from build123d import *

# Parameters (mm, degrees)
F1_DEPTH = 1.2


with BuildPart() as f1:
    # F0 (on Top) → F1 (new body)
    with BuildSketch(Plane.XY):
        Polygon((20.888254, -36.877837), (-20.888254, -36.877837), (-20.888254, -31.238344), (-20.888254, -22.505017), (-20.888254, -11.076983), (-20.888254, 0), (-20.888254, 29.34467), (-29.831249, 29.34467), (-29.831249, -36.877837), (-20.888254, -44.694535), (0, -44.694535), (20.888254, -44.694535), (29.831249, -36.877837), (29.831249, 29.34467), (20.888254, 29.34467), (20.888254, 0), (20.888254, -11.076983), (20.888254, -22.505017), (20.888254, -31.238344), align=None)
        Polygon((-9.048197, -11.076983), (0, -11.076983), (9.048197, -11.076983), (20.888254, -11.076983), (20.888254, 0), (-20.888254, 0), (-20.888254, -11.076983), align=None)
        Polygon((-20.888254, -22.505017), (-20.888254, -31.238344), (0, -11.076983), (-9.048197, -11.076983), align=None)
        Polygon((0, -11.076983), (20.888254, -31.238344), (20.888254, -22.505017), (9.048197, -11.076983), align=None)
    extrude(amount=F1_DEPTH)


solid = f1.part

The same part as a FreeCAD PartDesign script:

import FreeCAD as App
import Part
import Sketcher

V = App.Vector
Q = App.Units.Quantity


def add_polygon(sketch, points):
    """Adds a closed chain of lines whose ends are joined by coincident constraints."""
    first, n = sketch.GeometryCount, len(points)
    for a, b in zip(points, points[1:] + points[:1]):
        sketch.addGeometry(Part.LineSegment(App.Vector(*a, 0), App.Vector(*b, 0)), False)
    for i in range(n):
        sketch.addConstraint(Sketcher.Constraint("Coincident", first + i, 2, first + (i + 1) % n, 1))

doc = App.newDocument("Part")
body = doc.addObject("PartDesign::Body", "Body")

# Sketch on XY plane
sketch1 = doc.addObject("Sketcher::SketchObject", "Sketch")
body.addObject(sketch1)
sketch1.AttachmentSupport = (doc.XY_Plane, [""])
sketch1.MapMode = "FlatFace"
add_polygon(sketch1, [(-20.888254, 0), (-20.888254, 29.34467), (-29.831249, 29.34467), (-29.831249, -36.877837), (-20.888254, -44.694535), (20.888254, -44.694535), (29.831249, -36.877837), (29.831249, 29.34467), (20.888254, 29.34467), (20.888254, 0)])  # lines 0-9
add_polygon(sketch1, [(20.888254, -36.877837), (-20.888254, -36.877837), (-20.888254, -31.238344), (0, -11.076983), (20.888254, -31.238344)])  # lines 10-14
add_polygon(sketch1, [(9.048197, -11.076983), (20.888254, -11.076983), (20.888254, -22.505017)])  # lines 15-17
add_polygon(sketch1, [(-20.888254, -22.505017), (-20.888254, -11.076983), (-9.048197, -11.076983)])  # lines 18-20
sketch1.addConstraint(Sketcher.Constraint("Vertical", 0))
sketch1.addConstraint(Sketcher.Constraint("Horizontal", 1))
sketch1.addConstraint(Sketcher.Constraint("Vertical", 2))
sketch1.addConstraint(Sketcher.Constraint("Horizontal", 4))
sketch1.addConstraint(Sketcher.Constraint("Vertical", 6))
sketch1.addConstraint(Sketcher.Constraint("Horizontal", 7))
sketch1.addConstraint(Sketcher.Constraint("Vertical", 8))
sketch1.addConstraint(Sketcher.Constraint("Horizontal", 9))
sketch1.addConstraint(Sketcher.Constraint("Horizontal", 10))
sketch1.addConstraint(Sketcher.Constraint("Vertical", 11))
sketch1.addConstraint(Sketcher.Constraint("Vertical", 14))
sketch1.addConstraint(Sketcher.Constraint("Horizontal", 15))
sketch1.addConstraint(Sketcher.Constraint("Vertical", 16))
sketch1.addConstraint(Sketcher.Constraint("Vertical", 18))
sketch1.addConstraint(Sketcher.Constraint("Horizontal", 19))
sketch1.addConstraint(Sketcher.Constraint("Symmetric", 8, 2, 9, 2, -1, 1))
sketch1.addConstraint(Sketcher.Constraint("Symmetric", 2, 2, 5, 2, -2))
sketch1.addConstraint(Sketcher.Constraint("Symmetric", 11, 2, 13, 2, -2))
sketch1.addConstraint(Sketcher.Constraint("Symmetric", 15, 2, 18, 2, -2))
sketch1.addConstraint(Sketcher.Constraint("PointOnObject", 12, 2, -2))
sketch1.addConstraint(Sketcher.Constraint("Parallel", 13, 17))
sketch1.addConstraint(Sketcher.Constraint("Parallel", 12, 20))
sketch1.addConstraint(Sketcher.Constraint("Horizontal", 1, 2, 6, 2))
sketch1.addConstraint(Sketcher.Constraint("Horizontal", 5, 2, 10, 2))
sketch1.addConstraint(Sketcher.Constraint("Horizontal", 12, 2, 15, 2))
sketch1.addConstraint(Sketcher.Constraint("Horizontal", 16, 2, 20, 2))
sketch1.addConstraint(Sketcher.Constraint("Vertical", 0, 2, 3, 2))
sketch1.addConstraint(Sketcher.Constraint("Vertical", 4, 2, 7, 2))
sketch1.addConstraint(Sketcher.Constraint("Vertical", 9, 2, 10, 2))
sketch1.addConstraint(Sketcher.Constraint("Vertical", 14, 2, 15, 2))
sketch1.addConstraint(Sketcher.Constraint("DistanceY", 0, 1, 0, 2, Q("29.34467 mm")))
sketch1.addConstraint(Sketcher.Constraint("DistanceY", 3, 2, 2, 2, Q("7.816698 mm")))
sketch1.addConstraint(Sketcher.Constraint("Distance", 12, Q("29.031012 mm")))
sketch1.addConstraint(Sketcher.Constraint("DistanceX", 1, 2, 1, 1, Q("8.942995 mm")))
sketch1.addConstraint(Sketcher.Constraint("DistanceX", 4, 1, 4, 2, Q("41.776508 mm")))
sketch1.addConstraint(Sketcher.Constraint("DistanceX", 15, 1, 15, 2, Q("11.840057 mm")))
sketch1.addConstraint(Sketcher.Constraint("DistanceY", 2, 2, 2, 1, Q("66.222507 mm")))
sketch1.addConstraint(Sketcher.Constraint("DistanceY", 11, 1, 11, 2, Q("5.639493 mm")))
pad1 = doc.addObject("PartDesign::Pad", "Pad")
body.addObject(pad1)
pad1.Profile = sketch1
pad1.Length = 1.2

doc.recompute()
